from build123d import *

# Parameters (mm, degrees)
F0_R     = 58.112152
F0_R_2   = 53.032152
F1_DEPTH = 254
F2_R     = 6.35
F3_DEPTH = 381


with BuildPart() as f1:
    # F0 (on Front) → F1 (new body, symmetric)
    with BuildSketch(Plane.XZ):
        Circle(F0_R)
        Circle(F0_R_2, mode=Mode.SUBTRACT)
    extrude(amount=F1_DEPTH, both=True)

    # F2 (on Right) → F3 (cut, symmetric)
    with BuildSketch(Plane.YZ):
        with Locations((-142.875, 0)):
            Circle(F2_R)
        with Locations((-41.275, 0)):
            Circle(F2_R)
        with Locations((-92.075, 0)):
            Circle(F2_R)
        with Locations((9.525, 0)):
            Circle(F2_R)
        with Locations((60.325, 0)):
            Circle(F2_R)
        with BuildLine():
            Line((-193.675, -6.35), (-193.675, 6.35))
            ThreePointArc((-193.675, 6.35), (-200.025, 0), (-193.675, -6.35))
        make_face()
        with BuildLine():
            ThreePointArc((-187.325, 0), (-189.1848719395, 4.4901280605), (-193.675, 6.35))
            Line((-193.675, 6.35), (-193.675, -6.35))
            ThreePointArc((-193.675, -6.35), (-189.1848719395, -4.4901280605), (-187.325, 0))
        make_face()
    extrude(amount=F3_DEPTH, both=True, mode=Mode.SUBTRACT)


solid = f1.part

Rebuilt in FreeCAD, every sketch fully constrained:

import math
import FreeCAD as App
import Part
import Sketcher

V = App.Vector
Q = App.Units.Quantity

doc = App.newDocument("Part")
body = doc.addObject("PartDesign::Body", "Body")

# Sketch on XZ plane
sketch1 = body.newObject("Sketcher::SketchObject", "Sketch")
sketch1.AttachmentSupport = (doc.getObject("XZ_Plane"), [""])
sketch1.MapMode = "FlatFace"
sketch1.addGeometry(Part.Circle(V(0, 0, 0), V(0, 0, 1), 58.112152), False)
sketch1.addGeometry(Part.Circle(V(0, 0, 0), V(0, 0, 1), 53.032152), False)
sketch1.addConstraint(Sketcher.Constraint("Coincident", 0, 3, -1, 1))
sketch1.addConstraint(Sketcher.Constraint("Coincident", 1, 3, -1, 1))
sketch1.addConstraint(Sketcher.Constraint("Diameter", 0, 116.224304))
sketch1.addConstraint(Sketcher.Constraint("Diameter", 1, 106.064304))
pad1 = body.newObject("PartDesign::Pad", "Pad")
pad1.Profile = sketch1
pad1.Length = Q("20 in")
pad1.Midplane = True

# Sketch on YZ plane
sketch2 = body.newObject("Sketcher::SketchObject", "Sketch001")
sketch2.AttachmentSupport = (doc.getObject("YZ_Plane"), [""])
sketch2.MapMode = "FlatFace"
sketch2.addGeometry(Part.Circle(V(-142.875, 0, 0), V(0, 0, 1), 6.35), False)
sketch2.addGeometry(Part.Circle(V(-41.275, 0, 0), V(0, 0, 1), 6.35), False)
sketch2.addGeometry(Part.Circle(V(-92.075, 0, 0), V(0, 0, 1), 6.35), False)
sketch2.addGeometry(Part.Circle(V(9.525, 0, 0), V(0, 0, 1), 6.35), False)
sketch2.addGeometry(Part.Circle(V(60.325, 0, 0), V(0, 0, 1), 6.35), False)
sketch2.addGeometry(Part.ArcOfCircle(Part.Circle(V(-193.675, 0, 0), V(0, 0, 1), 6.35), math.radians(90), math.radians(270)), False)
sketch2.addGeometry(Part.ArcOfCircle(Part.Circle(V(-193.675, 0, 0), V(0, 0, 1), 6.35), math.radians(-90), math.radians(0)), False)
sketch2.addGeometry(Part.ArcOfCircle(Part.Circle(V(-193.675, 0, 0), V(0, 0, 1), 6.35), math.radians(0), math.radians(90)), False)
sketch2.addConstraint(Sketcher.Constraint("Tangent", 5, 2, 6, 1))
sketch2.addConstraint(Sketcher.Constraint("Tangent", 6, 2, 7, 1))
sketch2.addConstraint(Sketcher.Constraint("Tangent", 7, 2, 5, 1))
sketch2.addConstraint(Sketcher.Constraint("Equal", 0, 1))
sketch2.addConstraint(Sketcher.Constraint("Equal", 1, 2))
sketch2.addConstraint(Sketcher.Constraint("Equal", 2, 3))
sketch2.addConstraint(Sketcher.Constraint("Equal", 3, 4))
sketch2.addConstraint(Sketcher.Constraint("Equal", 4, 5))
sketch2.addConstraint(Sketcher.Constraint("Symmetric", 5, 2, 7, 2, -1))
sketch2.addConstraint(Sketcher.Constraint("PointOnObject", 0, 3, -1))
sketch2.addConstraint(Sketcher.Constraint("PointOnObject", 1, 3, -1))
sketch2.addConstraint(Sketcher.Constraint("PointOnObject", 2, 3, -1))
sketch2.addConstraint(Sketcher.Constraint("PointOnObject", 3, 3, -1))
sketch2.addConstraint(Sketcher.Constraint("PointOnObject", 4, 3, -1))
sketch2.addConstraint(Sketcher.Constraint("PointOnObject", 6, 2, -1))
sketch2.addConstraint(Sketcher.Constraint("Vertical", 7, 3, 5, 2))
sketch2.addConstraint(Sketcher.Constraint("Diameter", 0, Q("0.5 in")))
sketch2.addConstraint(Sketcher.Constraint("DistanceX", 0, 3, 1, 3, Q("4 in")))
sketch2.addConstraint(Sketcher.Constraint("DistanceX", 0, 3, 2, 3, Q("2 in")))
sketch2.addConstraint(Sketcher.Constraint("DistanceX", 1, 3, 3, 3, Q("2 in")))
sketch2.addConstraint(Sketcher.Constraint("DistanceX", 3, 3, 4, 3, Q("2 in")))
sketch2.addConstraint(Sketcher.Constraint("DistanceX", 5, 3, 0, 3, Q("2 in")))
sketch2.addConstraint(Sketcher.Constraint("DistanceX", 0, 3, -1, 1, Q("5.625 in")))
pocket1 = body.newObject("PartDesign::Pocket", "Pocket")
pocket1.Profile = sketch2
pocket1.Length = Q("30 in")
pocket1.Midplane = True

doc.recompute()
